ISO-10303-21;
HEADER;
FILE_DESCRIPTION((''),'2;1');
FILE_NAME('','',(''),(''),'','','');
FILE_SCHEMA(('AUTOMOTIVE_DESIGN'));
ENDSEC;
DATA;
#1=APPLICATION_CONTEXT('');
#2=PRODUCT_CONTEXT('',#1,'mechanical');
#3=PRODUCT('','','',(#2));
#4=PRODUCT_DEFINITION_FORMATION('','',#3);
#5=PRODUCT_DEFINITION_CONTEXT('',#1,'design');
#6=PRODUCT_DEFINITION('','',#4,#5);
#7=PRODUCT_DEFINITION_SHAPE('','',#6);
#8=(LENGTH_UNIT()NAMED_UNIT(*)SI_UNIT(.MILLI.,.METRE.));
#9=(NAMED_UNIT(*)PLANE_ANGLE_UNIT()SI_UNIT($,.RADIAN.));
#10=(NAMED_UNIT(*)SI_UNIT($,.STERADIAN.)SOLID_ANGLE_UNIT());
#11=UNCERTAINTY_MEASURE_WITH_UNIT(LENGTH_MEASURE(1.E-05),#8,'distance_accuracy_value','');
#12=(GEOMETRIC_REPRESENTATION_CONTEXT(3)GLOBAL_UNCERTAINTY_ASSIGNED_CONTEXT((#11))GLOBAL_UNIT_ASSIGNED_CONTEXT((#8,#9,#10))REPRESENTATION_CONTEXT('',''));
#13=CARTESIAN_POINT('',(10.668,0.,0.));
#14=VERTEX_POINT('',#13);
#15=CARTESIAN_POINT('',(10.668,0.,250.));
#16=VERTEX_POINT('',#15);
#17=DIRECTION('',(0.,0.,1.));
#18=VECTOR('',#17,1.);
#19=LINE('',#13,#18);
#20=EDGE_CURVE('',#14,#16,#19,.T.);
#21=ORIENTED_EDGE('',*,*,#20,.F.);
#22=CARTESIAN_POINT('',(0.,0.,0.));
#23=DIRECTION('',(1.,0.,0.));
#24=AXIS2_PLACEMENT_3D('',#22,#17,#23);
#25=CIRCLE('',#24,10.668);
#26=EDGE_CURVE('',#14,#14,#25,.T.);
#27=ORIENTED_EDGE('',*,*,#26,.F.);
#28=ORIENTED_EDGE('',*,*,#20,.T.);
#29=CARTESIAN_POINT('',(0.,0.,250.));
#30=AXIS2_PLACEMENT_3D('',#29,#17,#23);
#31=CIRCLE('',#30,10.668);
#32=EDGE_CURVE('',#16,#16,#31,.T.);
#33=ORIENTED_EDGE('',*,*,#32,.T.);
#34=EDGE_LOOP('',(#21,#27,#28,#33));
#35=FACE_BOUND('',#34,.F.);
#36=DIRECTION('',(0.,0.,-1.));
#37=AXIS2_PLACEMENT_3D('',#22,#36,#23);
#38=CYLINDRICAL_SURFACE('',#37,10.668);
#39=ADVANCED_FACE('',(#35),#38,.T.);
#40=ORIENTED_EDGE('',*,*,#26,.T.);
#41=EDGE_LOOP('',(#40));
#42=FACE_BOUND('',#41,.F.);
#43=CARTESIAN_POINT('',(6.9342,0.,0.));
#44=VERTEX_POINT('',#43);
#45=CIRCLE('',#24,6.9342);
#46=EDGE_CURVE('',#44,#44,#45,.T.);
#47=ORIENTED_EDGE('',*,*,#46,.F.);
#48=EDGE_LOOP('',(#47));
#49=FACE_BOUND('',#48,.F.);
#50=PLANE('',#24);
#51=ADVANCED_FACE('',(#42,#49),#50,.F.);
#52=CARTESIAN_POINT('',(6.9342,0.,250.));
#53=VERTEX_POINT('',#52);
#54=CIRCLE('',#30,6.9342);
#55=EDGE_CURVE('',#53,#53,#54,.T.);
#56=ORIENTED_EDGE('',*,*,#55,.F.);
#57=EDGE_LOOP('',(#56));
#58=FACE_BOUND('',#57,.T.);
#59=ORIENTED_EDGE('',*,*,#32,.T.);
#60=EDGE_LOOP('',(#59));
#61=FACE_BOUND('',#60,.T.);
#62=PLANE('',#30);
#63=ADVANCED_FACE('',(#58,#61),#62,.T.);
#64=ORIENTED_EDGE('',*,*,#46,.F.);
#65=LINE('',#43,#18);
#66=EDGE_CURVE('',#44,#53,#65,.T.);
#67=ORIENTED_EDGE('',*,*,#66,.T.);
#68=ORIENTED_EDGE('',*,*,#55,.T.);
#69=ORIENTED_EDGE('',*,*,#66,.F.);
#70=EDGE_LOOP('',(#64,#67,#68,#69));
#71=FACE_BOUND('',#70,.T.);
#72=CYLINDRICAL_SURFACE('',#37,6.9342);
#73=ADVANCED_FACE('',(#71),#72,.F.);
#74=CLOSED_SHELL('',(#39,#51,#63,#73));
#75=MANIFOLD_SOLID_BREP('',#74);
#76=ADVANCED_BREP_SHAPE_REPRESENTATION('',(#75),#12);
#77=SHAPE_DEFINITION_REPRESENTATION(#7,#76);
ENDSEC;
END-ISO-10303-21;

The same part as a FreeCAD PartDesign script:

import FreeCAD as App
import Part
import Sketcher
from FreeCAD import Vector
Q = App.Units.Quantity

doc = App.newDocument("Part")
body = doc.addObject("PartDesign::Body", "Body")

sketch1 = doc.addObject("Sketcher::SketchObject", "Sketch")
body.addObject(sketch1)
sketch1.AttachmentSupport = (doc.XY_Plane, [""])
sketch1.MapMode = "FlatFace"
sketch1.addGeometry([
    Part.Circle(Vector(0, 0, 0), Vector(0, 0, 1), 11),
    Part.Circle(Vector(0, 0, 0), Vector(0, 0, 1), 7),
], False)
sketch1.addConstraint([
    Sketcher.Constraint("Coincident", 0, 3, -1, 1),
    Sketcher.Constraint("Coincident", 1, 3, -1, 1),
    Sketcher.Constraint("Diameter", 0, Q("0.84 in")),
    Sketcher.Constraint("Diameter", 1, Q("0.546 in")),
])
pad1 = doc.addObject("PartDesign::Pad", "Pad")
body.addObject(pad1)
pad1.Profile = sketch1
pad1.Length = 250

doc.recompute()
